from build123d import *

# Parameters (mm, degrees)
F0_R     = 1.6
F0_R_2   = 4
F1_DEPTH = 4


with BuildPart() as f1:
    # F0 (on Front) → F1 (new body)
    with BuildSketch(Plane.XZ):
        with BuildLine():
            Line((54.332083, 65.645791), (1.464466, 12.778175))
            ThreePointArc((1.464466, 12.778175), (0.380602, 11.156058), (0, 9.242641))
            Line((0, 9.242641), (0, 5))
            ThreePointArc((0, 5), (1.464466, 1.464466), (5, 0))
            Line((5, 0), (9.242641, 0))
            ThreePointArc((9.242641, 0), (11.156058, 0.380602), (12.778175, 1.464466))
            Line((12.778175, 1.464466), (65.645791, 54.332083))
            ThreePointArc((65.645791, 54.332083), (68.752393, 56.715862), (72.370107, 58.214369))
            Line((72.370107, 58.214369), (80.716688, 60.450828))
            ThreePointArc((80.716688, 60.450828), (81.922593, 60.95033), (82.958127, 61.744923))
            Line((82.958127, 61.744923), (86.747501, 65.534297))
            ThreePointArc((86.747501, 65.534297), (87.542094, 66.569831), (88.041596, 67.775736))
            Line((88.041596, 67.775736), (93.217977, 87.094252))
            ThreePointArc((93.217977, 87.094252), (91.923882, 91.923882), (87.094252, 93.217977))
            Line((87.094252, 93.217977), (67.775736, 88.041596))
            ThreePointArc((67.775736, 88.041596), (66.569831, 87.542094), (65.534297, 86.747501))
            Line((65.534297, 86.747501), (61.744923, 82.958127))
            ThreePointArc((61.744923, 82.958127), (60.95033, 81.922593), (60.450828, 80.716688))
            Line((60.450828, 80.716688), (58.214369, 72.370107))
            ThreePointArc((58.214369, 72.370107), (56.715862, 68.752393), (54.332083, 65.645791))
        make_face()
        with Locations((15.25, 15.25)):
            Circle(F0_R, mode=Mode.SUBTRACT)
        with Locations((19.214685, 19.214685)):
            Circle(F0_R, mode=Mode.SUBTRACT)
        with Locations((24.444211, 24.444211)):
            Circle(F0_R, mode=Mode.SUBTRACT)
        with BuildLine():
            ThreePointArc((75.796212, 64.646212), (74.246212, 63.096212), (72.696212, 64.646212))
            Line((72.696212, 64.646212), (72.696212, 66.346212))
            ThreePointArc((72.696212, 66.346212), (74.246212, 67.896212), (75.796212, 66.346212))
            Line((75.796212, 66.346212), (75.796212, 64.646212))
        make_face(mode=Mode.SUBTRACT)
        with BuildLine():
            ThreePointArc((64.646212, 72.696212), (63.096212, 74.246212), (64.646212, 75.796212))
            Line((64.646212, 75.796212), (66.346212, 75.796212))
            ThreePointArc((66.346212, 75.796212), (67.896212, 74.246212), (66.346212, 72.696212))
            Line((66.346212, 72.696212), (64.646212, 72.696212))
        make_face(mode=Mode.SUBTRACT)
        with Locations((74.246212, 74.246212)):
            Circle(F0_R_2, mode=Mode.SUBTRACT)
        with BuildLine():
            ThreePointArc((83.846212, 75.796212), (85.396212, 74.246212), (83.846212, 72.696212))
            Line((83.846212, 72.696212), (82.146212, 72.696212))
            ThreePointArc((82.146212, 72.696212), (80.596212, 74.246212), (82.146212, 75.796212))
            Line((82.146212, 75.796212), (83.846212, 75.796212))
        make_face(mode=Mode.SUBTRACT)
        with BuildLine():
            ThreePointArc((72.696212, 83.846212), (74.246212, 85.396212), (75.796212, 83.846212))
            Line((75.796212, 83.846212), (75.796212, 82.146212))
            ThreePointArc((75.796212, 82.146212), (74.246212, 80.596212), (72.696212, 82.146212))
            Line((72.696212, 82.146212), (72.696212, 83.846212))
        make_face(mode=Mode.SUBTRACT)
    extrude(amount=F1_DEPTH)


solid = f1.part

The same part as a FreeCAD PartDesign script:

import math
import FreeCAD as App
import Part
import Sketcher
Q = App.Units.Quantity

doc = App.newDocument("Part")
body = doc.addObject("PartDesign::Body", "Body")

sketch1 = body.newObject("Sketcher::SketchObject", "Sketch")
sketch1.AttachmentSupport = (doc.getObject("XZ_Plane"), [""])
sketch1.MapMode = "FlatFace"
sketch1.addGeometry([
    Part.LineSegment(App.Vector(54.3, 65.6, 0), App.Vector(1.5, 12.8, 0)),
    Part.ArcOfCircle(Part.Circle(App.Vector(5, 9.2, 0), App.Vector(0, 0, 1), 5), math.radians(135), math.radians(180)),
    Part.LineSegment(App.Vector(0, 9.2, 0), App.Vector(0, 5, 0)),
    Part.ArcOfCircle(Part.Circle(App.Vector(5, 5, 0), App.Vector(0, 0, 1), 5), math.radians(180), math.radians(270)),
    Part.LineSegment(App.Vector(5, 0, 0), App.Vector(9.2, 0, 0)),
    Part.ArcOfCircle(Part.Circle(App.Vector(9.2, 5, 0), App.Vector(0, 0, 1), 5), math.radians(-90), math.radians(-45)),
    Part.LineSegment(App.Vector(12.8, 1.5, 0), App.Vector(65.6, 54.3, 0)),
    Part.ArcOfCircle(Part.Circle(App.Vector(76.3, 43.7, 0), App.Vector(0, 0, 1), 15), math.radians(105), math.radians(135)),
    Part.LineSegment(App.Vector(72.4, 58.2, 0), App.Vector(80.7, 60.5, 0)),
    Part.ArcOfCircle(Part.Circle(App.Vector(79.4, 65.3, 0), App.Vector(0, 0, 1), 5), math.radians(-75), math.radians(-45)),
    Part.LineSegment(App.Vector(83, 61.7, 0), App.Vector(86.7, 65.5, 0)),
    Part.ArcOfCircle(Part.Circle(App.Vector(83.2, 69.1, 0), App.Vector(0, 0, 1), 5), math.radians(-45), math.radians(-15)),
    Part.LineSegment(App.Vector(88, 67.8, 0), App.Vector(93.2, 87.1, 0)),
    Part.ArcOfCircle(Part.Circle(App.Vector(88.4, 88.4, 0), App.Vector(0, 0, 1), 5), math.radians(-15), math.radians(105)),
    Part.LineSegment(App.Vector(87.1, 93.2, 0), App.Vector(67.8, 88, 0)),
    Part.ArcOfCircle(Part.Circle(App.Vector(69.1, 83.2, 0), App.Vector(0, 0, 1), 5), math.radians(105), math.radians(135)),
    Part.LineSegment(App.Vector(65.5, 86.7, 0), App.Vector(61.7, 83, 0)),
    Part.ArcOfCircle(Part.Circle(App.Vector(65.3, 79.4, 0), App.Vector(0, 0, 1), 5), math.radians(135), math.radians(165)),
    Part.LineSegment(App.Vector(60.5, 80.7, 0), App.Vector(58.2, 72.4, 0)),
    Part.ArcOfCircle(Part.Circle(App.Vector(43.7, 76.3, 0), App.Vector(0, 0, 1), 15), math.radians(-45), math.radians(-15)),
    Part.Circle(App.Vector(15.2, 15.2, 0), App.Vector(0, 0, 1), 1.6),
    Part.Circle(App.Vector(19.2, 19.2, 0), App.Vector(0, 0, 1), 1.6),
    Part.Circle(App.Vector(24.4, 24.4, 0), App.Vector(0, 0, 1), 1.6),
    Part.LineSegment(App.Vector(75.8, 66.3, 0), App.Vector(75.8, 64.6, 0)),
    Part.ArcOfCircle(Part.Circle(App.Vector(74.2, 64.6, 0), App.Vector(0, 0, 1), 1.6), math.radians(180), math.radians(360)),
    Part.LineSegment(App.Vector(72.7, 64.6, 0), App.Vector(72.7, 66.3, 0)),
    Part.ArcOfCircle(Part.Circle(App.Vector(74.2, 66.3, 0), App.Vector(0, 0, 1), 1.6), math.radians(0), math.radians(180)),
    Part.LineSegment(App.Vector(66.3, 72.7, 0), App.Vector(64.6, 72.7, 0)),
    Part.ArcOfCircle(Part.Circle(App.Vector(64.6, 74.2, 0), App.Vector(0, 0, 1), 1.6), math.radians(90), math.radians(270)),
    Part.LineSegment(App.Vector(64.6, 75.8, 0), App.Vector(66.3, 75.8, 0)),
    Part.ArcOfCircle(Part.Circle(App.Vector(66.3, 74.2, 0), App.Vector(0, 0, 1), 1.6), math.radians(-90), math.radians(90)),
    Part.Circle(App.Vector(74.2, 74.2, 0), App.Vector(0, 0, 1), 4),
    Part.LineSegment(App.Vector(82.1, 75.8, 0), App.Vector(83.8, 75.8, 0)),
    Part.ArcOfCircle(Part.Circle(App.Vector(83.8, 74.2, 0), App.Vector(0, 0, 1), 1.6), math.radians(-90), math.radians(90)),
    Part.LineSegment(App.Vector(83.8, 72.7, 0), App.Vector(82.1, 72.7, 0)),
    Part.ArcOfCircle(Part.Circle(App.Vector(82.1, 74.2, 0), App.Vector(0, 0, 1), 1.6), math.radians(90), math.radians(270)),
    Part.LineSegment(App.Vector(72.7, 82.1, 0), App.Vector(72.7, 83.8, 0)),
    Part.ArcOfCircle(Part.Circle(App.Vector(74.2, 83.8, 0), App.Vector(0, 0, 1), 1.6), math.radians(0), math.radians(180)),
    Part.LineSegment(App.Vector(75.8, 83.8, 0), App.Vector(75.8, 82.1, 0)),
    Part.ArcOfCircle(Part.Circle(App.Vector(74.2, 82.1, 0), App.Vector(0, 0, 1), 1.6), math.radians(180), math.radians(360)),
], False)
sketch1.addConstraint([
    Sketcher.Constraint("Tangent", 0, 2, 1, 1),
    Sketcher.Constraint("Tangent", 1, 2, 2, 1),
    Sketcher.Constraint("Tangent", 2, 2, 3, 1),
    Sketcher.Constraint("Tangent", 3, 2, 4, 1),
    Sketcher.Constraint("Tangent", 4, 2, 5, 1),
    Sketcher.Constraint("Tangent", 5, 2, 6, 1),
    Sketcher.Constraint("Tangent", 6, 2, 7, 2),
    Sketcher.Constraint("Tangent", 7, 1, 8, 1),
    Sketcher.Constraint("Tangent", 8, 2, 9, 1),
    Sketcher.Constraint("Tangent", 9, 2, 10, 1),
    Sketcher.Constraint("Tangent", 10, 2, 11, 1),
    Sketcher.Constraint("Tangent", 11, 2, 12, 1),
    Sketcher.Constraint("Tangent", 12, 2, 13, 1),
    Sketcher.Constraint("Tangent", 13, 2, 14, 1),
    Sketcher.Constraint("Tangent", 14, 2, 15, 1),
    Sketcher.Constraint("Tangent", 15, 2, 16, 1),
    Sketcher.Constraint("Tangent", 16, 2, 17, 1),
    Sketcher.Constraint("Tangent", 17, 2, 18, 1),
    Sketcher.Constraint("Tangent", 18, 2, 19, 2),
    Sketcher.Constraint("Tangent", 19, 1, 0, 1),
    Sketcher.Constraint("Tangent", 23, 2, 24, 2),
    Sketcher.Constraint("Tangent", 24, 1, 25, 1),
    Sketcher.Constraint("Tangent", 25, 2, 26, 2),
    Sketcher.Constraint("Tangent", 26, 1, 23, 1),
    Sketcher.Constraint("Tangent", 27, 2, 28, 2),
    Sketcher.Constraint("Tangent", 28, 1, 29, 1),
    Sketcher.Constraint("Tangent", 29, 2, 30, 2),
    Sketcher.Constraint("Tangent", 30, 1, 27, 1),
    Sketcher.Constraint("Tangent", 32, 2, 33, 2),
    Sketcher.Constraint("Tangent", 33, 1, 34, 1),
    Sketcher.Constraint("Tangent", 34, 2, 35, 2),
    Sketcher.Constraint("Tangent", 35, 1, 32, 1),
    Sketcher.Constraint("Tangent", 36, 2, 37, 2),
    Sketcher.Constraint("Tangent", 37, 1, 38, 1),
    Sketcher.Constraint("Tangent", 38, 2, 39, 2),
    Sketcher.Constraint("Tangent", 39, 1, 36, 1),
    Sketcher.Constraint("Vertical", 2),
    Sketcher.Constraint("Horizontal", 4),
    Sketcher.Constraint("Vertical", 23),
    Sketcher.Constraint("Vertical", 25),
    Sketcher.Constraint("Horizontal", 27),
    Sketcher.Constraint("Horizontal", 29),
    Sketcher.Constraint("Horizontal", 32),
    Sketcher.Constraint("Horizontal", 34),
    Sketcher.Constraint("Vertical", 36),
    Sketcher.Constraint("Vertical", 38),
    Sketcher.Constraint("Equal", 1, 3),
    Sketcher.Constraint("Equal", 3, 5),
    Sketcher.Constraint("Equal", 5, 9),
    Sketcher.Constraint("Equal", 9, 11),
    Sketcher.Constraint("Equal", 11, 13),
    Sketcher.Constraint("Equal", 13, 15),
    Sketcher.Constraint("Equal", 15, 17),
    Sketcher.Constraint("Equal", 7, 19),
    Sketcher.Constraint("Equal", 20, 21),
    Sketcher.Constraint("Equal", 21, 22),
    Sketcher.Constraint("Equal", 26, 28),
    Sketcher.Constraint("Equal", 30, 33),
    Sketcher.Constraint("Equal", 35, 37),
    Sketcher.Constraint("PointOnObject", 1, 2, -2),
    Sketcher.Constraint("PointOnObject", 3, 2, -1),
    Sketcher.Constraint("Parallel", 0, 6),
    Sketcher.Constraint("Parallel", 6, 10),
    Sketcher.Constraint("Parallel", 8, 14),
    Sketcher.Constraint("Parallel", 10, 16),
    Sketcher.Constraint("Parallel", 12, 18),
    Sketcher.Constraint("Horizontal", 30, 3, 31, 3),
    Sketcher.Constraint("Horizontal", 31, 3, 33, 3),
    Sketcher.Constraint("Vertical", 26, 3, 31, 3),
    Sketcher.Constraint("Vertical", 31, 3, 37, 3),
    Sketcher.Constraint("Equal", 29, 32),
    Sketcher.Constraint("Equal", 4, 2),
    Sketcher.Constraint("Equal", 34, 23),
    Sketcher.Constraint("Equal", 25, 36),
    Sketcher.Constraint("Equal", 0, 6),
    Sketcher.Constraint("Equal", 12, 14),
    Sketcher.Constraint("Equal", 10, 16),
    Sketcher.Constraint("Equal", 8, 18),
    Sketcher.Constraint("Diameter", 31, Q("8 mm")),
    Sketcher.Constraint("Radius", 3, Q("5 mm")),
    Sketcher.Constraint("Diameter", 20, Q("3.2 mm")),
    Sketcher.Constraint("Angle", 0, Q("-135.000001 deg")),
    Sketcher.Constraint("Angle", 8, Q("14.999996 deg")),
    Sketcher.Constraint("Radius", 24, Q("1.55 mm")),
    Sketcher.Constraint("Distance", 12, Q("20 mm")),
    Sketcher.Constraint("DistanceX", 27, 2, 27, 1, Q("1.7 mm")),
    Sketcher.Constraint("DistanceX", 28, 3, 26, 3, Q("9.6 mm")),
    Sketcher.Constraint("DistanceY", 26, 3, 28, 3, Q("7.9 mm")),
    Sketcher.Constraint("DistanceX", 31, 3, 33, 3, Q("9.6 mm")),
    Sketcher.Constraint("DistanceY", 31, 3, 37, 3, Q("9.6 mm")),
    Sketcher.Constraint("DistanceX", -1, 1, 20, 3, Q("15.25 mm")),
    Sketcher.Constraint("DistanceY", -1, 1, 20, 3, Q("15.25 mm")),
    Sketcher.Constraint("Radius", 7, Q("15.000017 mm")),
    Sketcher.Constraint("Distance", 0, Q("74.7661 mm")),
    Sketcher.Constraint("DistanceX", 4, 1, 4, 2, Q("4.242641 mm")),
    Sketcher.Constraint("DistanceX", -1, 1, 10, 2, Q("86.747501 mm")),
    Sketcher.Constraint("DistanceX", -1, 1, 22, 3, Q("24.444211 mm")),
    Sketcher.Constraint("DistanceY", -1, 1, 22, 3, Q("24.444211 mm")),
    Sketcher.Constraint("DistanceX", -1, 1, 24, 3, Q("74.246212 mm")),
    Sketcher.Constraint("DistanceY", -1, 1, 26, 3, Q("66.346212 mm")),
    Sketcher.Constraint("DistanceY", 21, 3, 7, 3, Q("24.510781 mm")),
    Sketcher.Constraint("DistanceX", 0, 2, 21, 3, Q("17.750219 mm")),
])
pad1 = body.newObject("PartDesign::Pad", "Pad")
pad1.Profile = sketch1
pad1.Length = 4

doc.recompute()
